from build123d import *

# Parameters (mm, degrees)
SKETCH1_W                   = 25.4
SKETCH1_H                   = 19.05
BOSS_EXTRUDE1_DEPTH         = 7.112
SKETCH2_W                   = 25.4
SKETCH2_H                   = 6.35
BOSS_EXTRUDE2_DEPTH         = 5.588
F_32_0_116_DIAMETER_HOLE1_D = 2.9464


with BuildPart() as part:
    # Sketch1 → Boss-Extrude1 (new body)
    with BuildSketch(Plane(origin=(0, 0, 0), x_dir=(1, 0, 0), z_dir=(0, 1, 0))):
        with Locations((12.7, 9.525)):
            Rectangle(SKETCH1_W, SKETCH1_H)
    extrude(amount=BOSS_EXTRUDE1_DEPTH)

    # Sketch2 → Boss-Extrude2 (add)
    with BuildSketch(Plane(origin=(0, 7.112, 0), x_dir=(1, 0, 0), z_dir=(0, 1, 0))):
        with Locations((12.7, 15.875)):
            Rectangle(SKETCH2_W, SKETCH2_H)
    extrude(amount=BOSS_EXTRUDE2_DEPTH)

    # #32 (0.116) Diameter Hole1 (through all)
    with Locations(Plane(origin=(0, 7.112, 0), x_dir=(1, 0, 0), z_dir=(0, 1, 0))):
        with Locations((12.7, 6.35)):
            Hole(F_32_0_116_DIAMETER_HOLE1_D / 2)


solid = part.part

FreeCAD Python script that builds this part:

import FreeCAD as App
import Part
import Sketcher
from FreeCAD import Vector
Q = App.Units.Quantity


def add_polygon(sketch, points):
    """Adds a closed chain of lines whose ends are joined by coincident constraints."""
    first, n = sketch.GeometryCount, len(points)
    for a, b in zip(points, points[1:] + points[:1]):
        sketch.addGeometry(Part.LineSegment(App.Vector(*a, 0), App.Vector(*b, 0)), False)
    for i in range(n):
        sketch.addConstraint(Sketcher.Constraint("Coincident", first + i, 2, first + (i + 1) % n, 1))

doc = App.newDocument("Part")
body = doc.addObject("PartDesign::Body", "Body")

sketch1 = doc.addObject("Sketcher::SketchObject", "Sketch")
body.addObject(sketch1)
sketch1.AttachmentSupport = (doc.XZ_Plane, [""])
sketch1.MapMode = "FlatFace"
add_polygon(sketch1, [(0, -19.05), (0, 0), (25.4, 0), (25.4, -19.05)])
sketch1.addConstraint([
    Sketcher.Constraint("Vertical", 0),
    Sketcher.Constraint("Horizontal", 1),
    Sketcher.Constraint("Vertical", 2),
    Sketcher.Constraint("Horizontal", 3),
    Sketcher.Constraint("Coincident", 0, 2, -1, 1),
    Sketcher.Constraint("DistanceX", 1, 1, 1, 2, Q("1 in")),
    Sketcher.Constraint("DistanceY", 0, 1, 0, 2, Q("0.75 in")),
])
pad1 = doc.addObject("PartDesign::Pad", "Pad")
body.addObject(pad1)
pad1.Profile = sketch1
pad1.Length = Q("0.28 in")
pad1.Reversed = True

sketch2 = doc.addObject("Sketcher::SketchObject", "Sketch001")
body.addObject(sketch2)
sketch2.AttachmentSupport = (doc.XZ_Plane, [""])
sketch2.MapMode = "FlatFace"
sketch2.AttachmentOffset = App.Placement(Vector(0, 0, -0.28 * 25.4), App.Rotation())
add_polygon(sketch2, [(0, -19.05), (0, -12.7), (25.4, -12.7), (25.4, -19.05)])
sketch2.addConstraint([
    Sketcher.Constraint("Vertical", 0),
    Sketcher.Constraint("Horizontal", 1),
    Sketcher.Constraint("Vertical", 2),
    Sketcher.Constraint("Horizontal", 3),
    Sketcher.Constraint("PointOnObject", 0, 2, -2),
    Sketcher.Constraint("DistanceX", 1, 1, 1, 2, Q("1 in")),
    Sketcher.Constraint("DistanceY", 0, 1, 0, 2, Q("0.25 in")),
    Sketcher.Constraint("DistanceY", 0, 2, -1, 1, Q("0.5 in")),
])
pad2 = doc.addObject("PartDesign::Pad", "Pad001")
body.addObject(pad2)
pad2.Profile = sketch2
pad2.Length = Q("0.22 in")
pad2.Reversed = True

sketch3 = doc.addObject("Sketcher::SketchObject", "Sketch002")
body.addObject(sketch3)
sketch3.AttachmentSupport = (doc.XZ_Plane, [""])
sketch3.MapMode = "FlatFace"
sketch3.AttachmentOffset = App.Placement(Vector(0, 0, -0.28 * 25.4), App.Rotation())
sketch3.addGeometry(Part.Circle(Vector(12.7, -6.35, 0), Vector(0, 0, 1), 1.4732), False)
sketch3.addConstraint([
    Sketcher.Constraint("Diameter", 0, Q("0.116 in")),
    Sketcher.Constraint("DistanceX", -1, 1, 0, 3, Q("0.5 in")),
    Sketcher.Constraint("DistanceY", 0, 3, -1, 1, Q("0.25 in")),
])
doc.recompute()
hole = doc.addObject("PartDesign::Hole", "Hole")
body.addObject(hole)
hole.Profile = sketch3
hole.ThreadType = "None"
hole.Diameter = Q("0.116 in")
hole.DepthType = "ThroughAll"
hole.Reversed = True

doc.recompute()
